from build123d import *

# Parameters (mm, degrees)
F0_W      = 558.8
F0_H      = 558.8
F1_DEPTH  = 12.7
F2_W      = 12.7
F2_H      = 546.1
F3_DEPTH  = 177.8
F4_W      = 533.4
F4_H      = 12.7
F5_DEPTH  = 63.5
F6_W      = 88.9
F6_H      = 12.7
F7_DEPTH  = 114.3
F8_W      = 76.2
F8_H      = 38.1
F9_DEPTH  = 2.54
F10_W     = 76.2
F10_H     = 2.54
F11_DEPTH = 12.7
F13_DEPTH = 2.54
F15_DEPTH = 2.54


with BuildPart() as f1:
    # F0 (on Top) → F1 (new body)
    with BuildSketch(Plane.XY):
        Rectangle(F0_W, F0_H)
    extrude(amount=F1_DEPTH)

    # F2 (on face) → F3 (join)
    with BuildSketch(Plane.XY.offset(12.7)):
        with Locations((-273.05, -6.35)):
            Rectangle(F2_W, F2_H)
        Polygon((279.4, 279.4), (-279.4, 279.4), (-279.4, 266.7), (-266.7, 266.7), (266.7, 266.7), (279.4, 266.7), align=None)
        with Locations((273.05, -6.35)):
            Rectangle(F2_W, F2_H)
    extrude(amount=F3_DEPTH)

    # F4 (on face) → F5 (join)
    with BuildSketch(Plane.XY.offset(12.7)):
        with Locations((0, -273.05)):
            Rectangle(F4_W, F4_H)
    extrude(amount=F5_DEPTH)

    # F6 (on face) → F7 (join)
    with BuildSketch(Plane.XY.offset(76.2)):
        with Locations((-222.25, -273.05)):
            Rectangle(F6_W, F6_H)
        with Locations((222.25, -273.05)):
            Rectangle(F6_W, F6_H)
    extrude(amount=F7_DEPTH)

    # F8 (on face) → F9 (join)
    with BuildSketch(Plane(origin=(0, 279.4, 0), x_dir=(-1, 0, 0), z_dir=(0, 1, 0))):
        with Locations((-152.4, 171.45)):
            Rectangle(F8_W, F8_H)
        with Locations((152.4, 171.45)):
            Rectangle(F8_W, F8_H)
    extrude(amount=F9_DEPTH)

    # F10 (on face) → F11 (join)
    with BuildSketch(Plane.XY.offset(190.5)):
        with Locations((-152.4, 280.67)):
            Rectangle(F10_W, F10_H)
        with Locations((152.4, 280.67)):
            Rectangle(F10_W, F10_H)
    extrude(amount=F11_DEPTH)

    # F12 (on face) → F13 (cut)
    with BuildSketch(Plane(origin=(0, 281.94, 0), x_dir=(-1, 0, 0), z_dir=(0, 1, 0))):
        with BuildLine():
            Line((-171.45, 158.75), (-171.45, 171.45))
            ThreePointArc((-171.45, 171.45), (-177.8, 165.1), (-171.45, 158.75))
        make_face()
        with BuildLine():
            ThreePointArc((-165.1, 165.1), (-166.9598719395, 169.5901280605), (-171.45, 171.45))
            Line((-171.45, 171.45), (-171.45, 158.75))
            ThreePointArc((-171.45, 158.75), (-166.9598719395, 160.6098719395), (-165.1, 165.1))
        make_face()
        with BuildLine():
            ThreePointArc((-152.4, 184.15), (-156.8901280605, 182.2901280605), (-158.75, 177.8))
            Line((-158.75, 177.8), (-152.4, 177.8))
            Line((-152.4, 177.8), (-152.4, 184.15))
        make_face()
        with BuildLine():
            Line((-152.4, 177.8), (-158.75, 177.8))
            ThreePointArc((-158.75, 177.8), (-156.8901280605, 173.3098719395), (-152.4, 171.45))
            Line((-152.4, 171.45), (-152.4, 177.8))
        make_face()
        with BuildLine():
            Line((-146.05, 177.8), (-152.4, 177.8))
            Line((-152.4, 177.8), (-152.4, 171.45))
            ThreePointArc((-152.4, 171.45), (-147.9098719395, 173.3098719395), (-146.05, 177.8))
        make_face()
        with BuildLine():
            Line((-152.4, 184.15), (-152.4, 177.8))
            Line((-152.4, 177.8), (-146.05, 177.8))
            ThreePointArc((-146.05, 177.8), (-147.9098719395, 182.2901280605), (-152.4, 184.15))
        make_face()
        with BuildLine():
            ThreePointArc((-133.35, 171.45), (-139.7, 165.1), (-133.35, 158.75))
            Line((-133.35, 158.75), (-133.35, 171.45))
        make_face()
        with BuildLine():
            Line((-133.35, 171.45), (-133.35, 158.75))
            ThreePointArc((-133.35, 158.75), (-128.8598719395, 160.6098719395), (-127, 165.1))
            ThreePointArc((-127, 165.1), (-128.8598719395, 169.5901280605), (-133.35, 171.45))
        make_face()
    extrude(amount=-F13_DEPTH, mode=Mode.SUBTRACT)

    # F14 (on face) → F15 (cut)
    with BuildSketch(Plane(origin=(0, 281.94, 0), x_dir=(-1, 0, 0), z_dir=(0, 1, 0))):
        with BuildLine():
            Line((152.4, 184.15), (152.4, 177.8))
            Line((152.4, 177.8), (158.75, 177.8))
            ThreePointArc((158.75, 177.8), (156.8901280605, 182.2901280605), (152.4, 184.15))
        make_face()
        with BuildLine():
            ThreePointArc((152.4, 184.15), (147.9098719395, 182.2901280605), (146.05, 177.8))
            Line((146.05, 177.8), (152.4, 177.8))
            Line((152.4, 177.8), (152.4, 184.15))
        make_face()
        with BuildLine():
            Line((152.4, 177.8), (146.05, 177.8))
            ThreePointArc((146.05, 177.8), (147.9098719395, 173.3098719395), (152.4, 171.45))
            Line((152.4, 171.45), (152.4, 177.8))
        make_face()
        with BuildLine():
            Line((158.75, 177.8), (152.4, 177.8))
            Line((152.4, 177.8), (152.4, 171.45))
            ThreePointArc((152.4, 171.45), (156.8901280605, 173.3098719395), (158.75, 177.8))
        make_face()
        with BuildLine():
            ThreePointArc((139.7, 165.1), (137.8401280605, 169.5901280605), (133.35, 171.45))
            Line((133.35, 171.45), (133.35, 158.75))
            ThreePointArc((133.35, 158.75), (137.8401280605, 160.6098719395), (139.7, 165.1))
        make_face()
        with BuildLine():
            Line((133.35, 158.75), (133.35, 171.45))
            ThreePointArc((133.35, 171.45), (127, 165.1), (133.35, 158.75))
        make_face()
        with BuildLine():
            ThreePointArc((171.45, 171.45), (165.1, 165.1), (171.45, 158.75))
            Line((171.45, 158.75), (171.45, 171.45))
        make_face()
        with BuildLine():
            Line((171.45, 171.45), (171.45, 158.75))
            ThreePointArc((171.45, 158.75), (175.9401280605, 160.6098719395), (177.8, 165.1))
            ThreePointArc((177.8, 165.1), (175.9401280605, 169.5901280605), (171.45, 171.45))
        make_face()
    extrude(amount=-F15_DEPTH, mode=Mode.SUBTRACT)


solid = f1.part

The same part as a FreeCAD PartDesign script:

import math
import FreeCAD as App
import Part
import Sketcher
Q = App.Units.Quantity

doc = App.newDocument("Part")
body = doc.addObject("PartDesign::Body", "Body")

# Sketch on XY plane
sketch1 = doc.addObject("Sketcher::SketchObject", "Sketch")
body.addObject(sketch1)
sketch1.AttachmentSupport = (doc.XY_Plane, [""])
sketch1.MapMode = "FlatFace"
sketch1.addGeometry([
    Part.LineSegment(App.Vector(-279, 279, 0), App.Vector(-279, -279, 0)),
    Part.LineSegment(App.Vector(-279, -279, 0), App.Vector(279, -279, 0)),
    Part.LineSegment(App.Vector(279, -279, 0), App.Vector(279, 279, 0)),
    Part.LineSegment(App.Vector(279, 279, 0), App.Vector(-279, 279, 0)),
], False)
sketch1.addConstraint([
    Sketcher.Constraint("Coincident", 0, 2, 1, 1),
    Sketcher.Constraint("Coincident", 1, 2, 2, 1),
    Sketcher.Constraint("Coincident", 2, 2, 3, 1),
    Sketcher.Constraint("Coincident", 3, 2, 0, 1),
    Sketcher.Constraint("Vertical", 0),
    Sketcher.Constraint("Horizontal", 1),
    Sketcher.Constraint("Vertical", 2),
    Sketcher.Constraint("Horizontal", 3),
    Sketcher.Constraint("Symmetric", 0, 2, 2, 2, -1, 1),
    Sketcher.Constraint("Equal", 3, 0),
    Sketcher.Constraint("DistanceX", 1, 1, 1, 2, Q("22 in")),
])
pad1 = doc.addObject("PartDesign::Pad", "Pad")
body.addObject(pad1)
pad1.Profile = sketch1
pad1.Length = Q("0.5 in")

# Sketch on XY plane
sketch2 = doc.addObject("Sketcher::SketchObject", "Sketch001")
body.addObject(sketch2)
sketch2.AttachmentSupport = (doc.XY_Plane, [""])
sketch2.MapMode = "FlatFace"
sketch2.AttachmentOffset = App.Placement(App.Vector(0, 0, 0.5 * 25.4), App.Rotation())
sketch2.addGeometry([
    Part.LineSegment(App.Vector(-279, -279, 0), App.Vector(-267, -279, 0)),  # 0
    Part.LineSegment(App.Vector(-267, -279, 0), App.Vector(-267, 267, 0)),  # 1
    Part.LineSegment(App.Vector(-267, 267, 0), App.Vector(267, 267, 0)),  # 2
    Part.LineSegment(App.Vector(267, 267, 0), App.Vector(267, -279, 0)),  # 3
    Part.LineSegment(App.Vector(267, -279, 0), App.Vector(279, -279, 0)),  # 4
    Part.LineSegment(App.Vector(279, -279, 0), App.Vector(279, 279, 0)),  # 5
    Part.LineSegment(App.Vector(279, 279, 0), App.Vector(-279, 279, 0)),  # 6
    Part.LineSegment(App.Vector(-279, 279, 0), App.Vector(-279, -279, 0)),  # 7
], False)
sketch2.addConstraint([
    Sketcher.Constraint("Coincident", 0, 2, 1, 1),
    Sketcher.Constraint("Coincident", 1, 2, 2, 1),
    Sketcher.Constraint("Coincident", 2, 2, 3, 1),
    Sketcher.Constraint("Coincident", 3, 2, 4, 1),
    Sketcher.Constraint("Coincident", 4, 2, 5, 1),
    Sketcher.Constraint("Coincident", 5, 2, 6, 1),
    Sketcher.Constraint("Coincident", 6, 2, 7, 1),
    Sketcher.Constraint("Coincident", 7, 2, 0, 1),
    Sketcher.Constraint("Horizontal", 0),
    Sketcher.Constraint("Vertical", 1),
    Sketcher.Constraint("Horizontal", 2),
    Sketcher.Constraint("Vertical", 3),
    Sketcher.Constraint("Horizontal", 4),
    Sketcher.Constraint("Vertical", 5),
    Sketcher.Constraint("Horizontal", 6),
    Sketcher.Constraint("Vertical", 7),
    Sketcher.Constraint("Symmetric", 4, 2, 6, 2, -1, 1),
    Sketcher.Constraint("Symmetric", 0, 2, 3, 2, -2),
    Sketcher.Constraint("Equal", 6, 5),
    Sketcher.Constraint("DistanceX", 2, 1, 2, 2, Q("21 in")),
    Sketcher.Constraint("DistanceX", 6, 2, 6, 1, Q("22 in")),
    Sketcher.Constraint("DistanceY", 1, 1, 1, 2, Q("21.5 in")),
])
pad2 = doc.addObject("PartDesign::Pad", "Pad001")
body.addObject(pad2)
pad2.Profile = sketch2
pad2.Length = Q("7 in")

# Sketch on XY plane
sketch3 = doc.addObject("Sketcher::SketchObject", "Sketch002")
body.addObject(sketch3)
sketch3.AttachmentSupport = (doc.XY_Plane, [""])
sketch3.MapMode = "FlatFace"
sketch3.AttachmentOffset = App.Placement(App.Vector(0, 0, 0.5 * 25.4), App.Rotation())
sketch3.addGeometry([
    Part.LineSegment(App.Vector(-267, -267, 0), App.Vector(-267, -279, 0)),
    Part.LineSegment(App.Vector(-267, -279, 0), App.Vector(267, -279, 0)),
    Part.LineSegment(App.Vector(267, -279, 0), App.Vector(267, -267, 0)),
    Part.LineSegment(App.Vector(267, -267, 0), App.Vector(-267, -267, 0)),
], False)
sketch3.addConstraint([
    Sketcher.Constraint("Coincident", 0, 2, 1, 1),
    Sketcher.Constraint("Coincident", 1, 2, 2, 1),
    Sketcher.Constraint("Coincident", 2, 2, 3, 1),
    Sketcher.Constraint("Coincident", 3, 2, 0, 1),
    Sketcher.Constraint("Vertical", 0),
    Sketcher.Constraint("Horizontal", 1),
    Sketcher.Constraint("Vertical", 2),
    Sketcher.Constraint("Horizontal", 3),
    Sketcher.Constraint("DistanceX", 1, 1, 1, 2, Q("21 in")),
    Sketcher.Constraint("DistanceY", 0, 2, 0, 1, Q("0.5 in")),
    Sketcher.Constraint("DistanceY", 0, 2, -1, 1, Q("11 in")),
    Sketcher.Constraint("DistanceX", 0, 2, -1, 1, Q("10.5 in")),
])
pad3 = doc.addObject("PartDesign::Pad", "Pad002")
body.addObject(pad3)
pad3.Profile = sketch3
pad3.Length = Q("2.5 in")

# Sketch on XY plane
sketch4 = doc.addObject("Sketcher::SketchObject", "Sketch003")
body.addObject(sketch4)
sketch4.AttachmentSupport = (doc.XY_Plane, [""])
sketch4.MapMode = "FlatFace"
sketch4.AttachmentOffset = App.Placement(App.Vector(0, 0, 3 * 25.4), App.Rotation())
sketch4.addGeometry([
    Part.LineSegment(App.Vector(-267, -267, 0), App.Vector(-267, -279, 0)),  # 0
    Part.LineSegment(App.Vector(-267, -279, 0), App.Vector(-178, -279, 0)),  # 1
    Part.LineSegment(App.Vector(-178, -279, 0), App.Vector(-178, -267, 0)),  # 2
    Part.LineSegment(App.Vector(-178, -267, 0), App.Vector(-267, -267, 0)),  # 3
    Part.LineSegment(App.Vector(178, -267, 0), App.Vector(178, -279, 0)),  # 4
    Part.LineSegment(App.Vector(178, -279, 0), App.Vector(267, -279, 0)),  # 5
    Part.LineSegment(App.Vector(267, -279, 0), App.Vector(267, -267, 0)),  # 6
    Part.LineSegment(App.Vector(267, -267, 0), App.Vector(178, -267, 0)),  # 7
], False)
sketch4.addConstraint([
    Sketcher.Constraint("Coincident", 0, 2, 1, 1),
    Sketcher.Constraint("Coincident", 1, 2, 2, 1),
    Sketcher.Constraint("Coincident", 2, 2, 3, 1),
    Sketcher.Constraint("Coincident", 3, 2, 0, 1),
    Sketcher.Constraint("Coincident", 4, 2, 5, 1),
    Sketcher.Constraint("Coincident", 5, 2, 6, 1),
    Sketcher.Constraint("Coincident", 6, 2, 7, 1),
    Sketcher.Constraint("Coincident", 7, 2, 4, 1),
    Sketcher.Constraint("Vertical", 0),
    Sketcher.Constraint("Horizontal", 1),
    Sketcher.Constraint("Vertical", 2),
    Sketcher.Constraint("Horizontal", 3),
    Sketcher.Constraint("Vertical", 4),
    Sketcher.Constraint("Horizontal", 5),
    Sketcher.Constraint("Vertical", 6),
    Sketcher.Constraint("Horizontal", 7),
    Sketcher.Constraint("Symmetric", 1, 2, 4, 2, -2),
    Sketcher.Constraint("Symmetric", 3, 2, 6, 2, -2),
    Sketcher.Constraint("DistanceX", 1, 1, 1, 2, Q("3.5 in")),
    Sketcher.Constraint("DistanceY", 0, 2, 0, 1, Q("0.5 in")),
    Sketcher.Constraint("DistanceY", 0, 2, -1, 1, Q("11 in")),
    Sketcher.Constraint("DistanceX", 1, 2, -1, 1, Q("7 in")),
])
pad4 = doc.addObject("PartDesign::Pad", "Pad003")
body.addObject(pad4)
pad4.Profile = sketch4
pad4.Length = Q("4.5 in")

# Sketch on XZ plane
sketch5 = doc.addObject("Sketcher::SketchObject", "Sketch004")
body.addObject(sketch5)
sketch5.AttachmentSupport = (doc.XZ_Plane, [""])
sketch5.MapMode = "FlatFace"
sketch5.AttachmentOffset = App.Placement(App.Vector(0, 0, -11 * 25.4), App.Rotation())
sketch5.addGeometry([
    Part.LineSegment(App.Vector(190, 190, 0), App.Vector(190, 152, 0)),  # 0
    Part.LineSegment(App.Vector(190, 152, 0), App.Vector(114, 152, 0)),  # 1
    Part.LineSegment(App.Vector(114, 152, 0), App.Vector(114, 190, 0)),  # 2
    Part.LineSegment(App.Vector(114, 190, 0), App.Vector(190, 190, 0)),  # 3
    Part.LineSegment(App.Vector(-114, 190, 0), App.Vector(-114, 152, 0)),  # 4
    Part.LineSegment(App.Vector(-114, 152, 0), App.Vector(-190, 152, 0)),  # 5
    Part.LineSegment(App.Vector(-190, 152, 0), App.Vector(-190, 190, 0)),  # 6
    Part.LineSegment(App.Vector(-190, 190, 0), App.Vector(-114, 190, 0)),  # 7
], False)
sketch5.addConstraint([
    Sketcher.Constraint("Coincident", 0, 2, 1, 1),
    Sketcher.Constraint("Coincident", 1, 2, 2, 1),
    Sketcher.Constraint("Coincident", 2, 2, 3, 1),
    Sketcher.Constraint("Coincident", 3, 2, 0, 1),
    Sketcher.Constraint("Coincident", 4, 2, 5, 1),
    Sketcher.Constraint("Coincident", 5, 2, 6, 1),
    Sketcher.Constraint("Coincident", 6, 2, 7, 1),
    Sketcher.Constraint("Coincident", 7, 2, 4, 1),
    Sketcher.Constraint("Vertical", 0),
    Sketcher.Constraint("Horizontal", 1),
    Sketcher.Constraint("Vertical", 2),
    Sketcher.Constraint("Horizontal", 3),
    Sketcher.Constraint("Vertical", 4),
    Sketcher.Constraint("Horizontal", 5),
    Sketcher.Constraint("Vertical", 6),
    Sketcher.Constraint("Horizontal", 7),
    Sketcher.Constraint("Symmetric", 1, 2, 4, 2, -2),
    Sketcher.Constraint("Symmetric", 3, 2, 6, 2, -2),
    Sketcher.Constraint("DistanceX", 1, 2, 1, 1, Q("3 in")),
    Sketcher.Constraint("DistanceY", 0, 2, 0, 1, Q("1.5 in")),
    Sketcher.Constraint("DistanceY", -1, 1, 0, 2, Q("6 in")),
    Sketcher.Constraint("DistanceX", 4, 2, 1, 2, Q("9 in")),
])
pad5 = doc.addObject("PartDesign::Pad", "Pad004")
body.addObject(pad5)
pad5.Profile = sketch5
pad5.Length = Q("0.1 in")
pad5.Reversed = True

# Sketch on XY plane
sketch6 = doc.addObject("Sketcher::SketchObject", "Sketch005")
body.addObject(sketch6)
sketch6.AttachmentSupport = (doc.XY_Plane, [""])
sketch6.MapMode = "FlatFace"
sketch6.AttachmentOffset = App.Placement(App.Vector(0, 0, 7.5 * 25.4), App.Rotation())
sketch6.addGeometry([
    Part.LineSegment(App.Vector(-190.5, 281.9, 0), App.Vector(-190.5, 279.4, 0)),  # 0
    Part.LineSegment(App.Vector(-190.5, 279.4, 0), App.Vector(-114.3, 279.4, 0)),  # 1
    Part.LineSegment(App.Vector(-114.3, 279.4, 0), App.Vector(-114.3, 281.9, 0)),  # 2
    Part.LineSegment(App.Vector(-114.3, 281.9, 0), App.Vector(-190.5, 281.9, 0)),  # 3
    Part.LineSegment(App.Vector(114.3, 281.9, 0), App.Vector(114.3, 279.4, 0)),  # 4
    Part.LineSegment(App.Vector(114.3, 279.4, 0), App.Vector(190.5, 279.4, 0)),  # 5
    Part.LineSegment(App.Vector(190.5, 279.4, 0), App.Vector(190.5, 281.9, 0)),  # 6
    Part.LineSegment(App.Vector(190.5, 281.9, 0), App.Vector(114.3, 281.9, 0)),  # 7
], False)
sketch6.addConstraint([
    Sketcher.Constraint("Coincident", 0, 2, 1, 1),
    Sketcher.Constraint("Coincident", 1, 2, 2, 1),
    Sketcher.Constraint("Coincident", 2, 2, 3, 1),
    Sketcher.Constraint("Coincident", 3, 2, 0, 1),
    Sketcher.Constraint("Coincident", 4, 2, 5, 1),
    Sketcher.Constraint("Coincident", 5, 2, 6, 1),
    Sketcher.Constraint("Coincident", 6, 2, 7, 1),
    Sketcher.Constraint("Coincident", 7, 2, 4, 1),
    Sketcher.Constraint("Vertical", 0),
    Sketcher.Constraint("Horizontal", 1),
    Sketcher.Constraint("Vertical", 2),
    Sketcher.Constraint("Horizontal", 3),
    Sketcher.Constraint("Vertical", 4),
    Sketcher.Constraint("Horizontal", 5),
    Sketcher.Constraint("Vertical", 6),
    Sketcher.Constraint("Horizontal", 7),
    Sketcher.Constraint("Symmetric", 1, 2, 4, 2, -2),
    Sketcher.Constraint("Symmetric", 3, 2, 6, 2, -2),
    Sketcher.Constraint("DistanceX", 1, 1, 1, 2, Q("3 in")),
    Sketcher.Constraint("DistanceY", 0, 2, 0, 1, Q("0.1 in")),
    Sketcher.Constraint("DistanceY", -1, 1, 0, 2, Q("11 in")),
    Sketcher.Constraint("DistanceX", 1, 2, 4, 2, Q("9 in")),
])
pad6 = doc.addObject("PartDesign::Pad", "Pad005")
body.addObject(pad6)
pad6.Profile = sketch6
pad6.Length = Q("0.5 in")

# Sketch on XZ plane
sketch7 = doc.addObject("Sketcher::SketchObject", "Sketch006")
body.addObject(sketch7)
sketch7.AttachmentSupport = (doc.XZ_Plane, [""])
sketch7.MapMode = "FlatFace"
sketch7.AttachmentOffset = App.Placement(App.Vector(0, 0, -11.1 * 25.4), App.Rotation())
sketch7.addGeometry([
    Part.ArcOfCircle(Part.Circle(App.Vector(171, 165, 0), App.Vector(0, 0, 1), 6), math.radians(-90), math.radians(90)),  # 0
    Part.ArcOfCircle(Part.Circle(App.Vector(171, 165, 0), App.Vector(0, 0, 1), 6), math.radians(180), math.radians(270)),  # 1
    Part.ArcOfCircle(Part.Circle(App.Vector(171, 165, 0), App.Vector(0, 0, 1), 6), math.radians(90), math.radians(180)),  # 2
    Part.ArcOfCircle(Part.Circle(App.Vector(152, 178, 0), App.Vector(0, 0, 1), 6), math.radians(0), math.radians(90)),  # 3
    Part.ArcOfCircle(Part.Circle(App.Vector(152, 178, 0), App.Vector(0, 0, 1), 6), math.radians(-90), math.radians(0)),  # 4
    Part.ArcOfCircle(Part.Circle(App.Vector(152, 178, 0), App.Vector(0, 0, 1), 6), math.radians(180), math.radians(270)),  # 5
    Part.ArcOfCircle(Part.Circle(App.Vector(152, 178, 0), App.Vector(0, 0, 1), 6), math.radians(90), math.radians(180)),  # 6
    Part.ArcOfCircle(Part.Circle(App.Vector(133, 165, 0), App.Vector(0, 0, 1), 6), math.radians(-90), math.radians(90)),  # 7
    Part.ArcOfCircle(Part.Circle(App.Vector(133, 165, 0), App.Vector(0, 0, 1), 6), math.radians(180), math.radians(270)),  # 8
    Part.ArcOfCircle(Part.Circle(App.Vector(133, 165, 0), App.Vector(0, 0, 1), 6), math.radians(90), math.radians(180)),  # 9
], False)
sketch7.addConstraint([
    Sketcher.Constraint("Tangent", 0, 1, 1, 2),
    Sketcher.Constraint("Tangent", 1, 1, 2, 2),
    Sketcher.Constraint("Tangent", 2, 1, 0, 2),
    Sketcher.Constraint("Tangent", 3, 1, 4, 2),
    Sketcher.Constraint("Tangent", 4, 1, 5, 2),
    Sketcher.Constraint("Tangent", 5, 1, 6, 2),
    Sketcher.Constraint("Tangent", 6, 1, 3, 2),
    Sketcher.Constraint("Tangent", 7, 1, 8, 2),
    Sketcher.Constraint("Tangent", 8, 1, 9, 2),
    Sketcher.Constraint("Tangent", 9, 1, 7, 2),
    Sketcher.Constraint("Equal", 2, 3),
    Sketcher.Constraint("Equal", 3, 4),
    Sketcher.Constraint("Equal", 6, 7),
    Sketcher.Constraint("Horizontal", 2, 3, 7, 3),
    Sketcher.Constraint("Horizontal", 9, 3, 1, 1),
    Sketcher.Constraint("Horizontal", 6, 3, 3, 1),
    Sketcher.Constraint("Horizontal", 2, 1, 4, 1),
    Sketcher.Constraint("Horizontal", 3, 1, 5, 1),
    Sketcher.Constraint("Horizontal", 1, 1, 8, 1),
    Sketcher.Constraint("Vertical", 2, 3, 0, 1),
    Sketcher.Constraint("Vertical", 0, 1, 2, 1),
    Sketcher.Constraint("Vertical", 6, 3, 4, 1),
    Sketcher.Constraint("Vertical", 4, 1, 6, 1),
    Sketcher.Constraint("Vertical", 9, 3, 7, 1),
    Sketcher.Constraint("Vertical", 7, 1, 9, 1),
    Sketcher.Constraint("Radius", 0, Q("0.25 in")),
    Sketcher.Constraint("DistanceX", -1, 1, 3, 3, Q("6 in")),
    Sketcher.Constraint("DistanceY", -1, 1, 3, 3, Q("7 in")),
    Sketcher.Constraint("DistanceX", -1, 1, 8, 1, Q("5 in")),
    Sketcher.Constraint("DistanceX", -1, 1, 1, 1, Q("6.5 in")),
])
pocket1 = doc.addObject("PartDesign::Pocket", "Pocket")
body.addObject(pocket1)
pocket1.Profile = sketch7
pocket1.Length = Q("0.1 in")
pocket1.Reversed = True

# Sketch on XZ plane
sketch8 = doc.addObject("Sketcher::SketchObject", "Sketch007")
body.addObject(sketch8)
sketch8.AttachmentSupport = (doc.XZ_Plane, [""])
sketch8.MapMode = "FlatFace"
sketch8.AttachmentOffset = App.Placement(App.Vector(0, 0, -11.1 * 25.4), App.Rotation())
sketch8.addGeometry([
    Part.ArcOfCircle(Part.Circle(App.Vector(-152, 178, 0), App.Vector(0, 0, 1), 6), math.radians(90), math.radians(180)),  # 0
    Part.ArcOfCircle(Part.Circle(App.Vector(-152, 178, 0), App.Vector(0, 0, 1), 6), math.radians(0), math.radians(90)),  # 1
    Part.ArcOfCircle(Part.Circle(App.Vector(-152, 178, 0), App.Vector(0, 0, 1), 6), math.radians(-90), math.radians(0)),  # 2
    Part.ArcOfCircle(Part.Circle(App.Vector(-152, 178, 0), App.Vector(0, 0, 1), 6), math.radians(180), math.radians(270)),  # 3
    Part.ArcOfCircle(Part.Circle(App.Vector(-133, 165, 0), App.Vector(0, 0, 1), 6), math.radians(90), math.radians(180)),  # 4
    Part.ArcOfCircle(Part.Circle(App.Vector(-133, 165, 0), App.Vector(0, 0, 1), 6), math.radians(-90), math.radians(90)),  # 5
    Part.ArcOfCircle(Part.Circle(App.Vector(-133, 165, 0), App.Vector(0, 0, 1), 6), math.radians(180), math.radians(270)),  # 6
    Part.ArcOfCircle(Part.Circle(App.Vector(-171, 165, 0), App.Vector(0, 0, 1), 6), math.radians(-90), math.radians(90)),  # 7
    Part.ArcOfCircle(Part.Circle(App.Vector(-171, 165, 0), App.Vector(0, 0, 1), 6), math.radians(180), math.radians(270)),  # 8
    Part.ArcOfCircle(Part.Circle(App.Vector(-171, 165, 0), App.Vector(0, 0, 1), 6), math.radians(90), math.radians(180)),  # 9
], False)
sketch8.addConstraint([
    Sketcher.Constraint("Tangent", 0, 1, 1, 2),
    Sketcher.Constraint("Tangent", 1, 1, 2, 2),
    Sketcher.Constraint("Tangent", 2, 1, 3, 2),
    Sketcher.Constraint("Tangent", 3, 1, 0, 2),
    Sketcher.Constraint("Tangent", 4, 1, 5, 2),
    Sketcher.Constraint("Tangent", 5, 1, 6, 2),
    Sketcher.Constraint("Tangent", 6, 1, 4, 2),
    Sketcher.Constraint("Tangent", 7, 1, 8, 2),
    Sketcher.Constraint("Tangent", 8, 1, 9, 2),
    Sketcher.Constraint("Tangent", 9, 1, 7, 2),
    Sketcher.Constraint("Equal", 0, 1),
    Sketcher.Constraint("Equal", 3, 4),
    Sketcher.Constraint("Equal", 6, 7),
    Sketcher.Constraint("Horizontal", 6, 3, 7, 3),
    Sketcher.Constraint("Horizontal", 3, 3, 1, 1),
    Sketcher.Constraint("Horizontal", 1, 1, 3, 1),
    Sketcher.Constraint("Horizontal", 2, 1, 4, 1),
    Sketcher.Constraint("Horizontal", 9, 3, 6, 1),
    Sketcher.Constraint("Horizontal", 6, 1, 8, 1),
    Sketcher.Constraint("Vertical", 3, 3, 0, 1),
    Sketcher.Constraint("Vertical", 0, 1, 2, 1),
    Sketcher.Constraint("Vertical", 6, 3, 4, 1),
    Sketcher.Constraint("Vertical", 4, 1, 5, 1),
    Sketcher.Constraint("Vertical", 9, 3, 7, 1),
    Sketcher.Constraint("Vertical", 7, 1, 9, 1),
    Sketcher.Constraint("Radius", 0, Q("0.25 in")),
    Sketcher.Constraint("DistanceX", 0, 3, -1, 1, Q("6 in")),
    Sketcher.Constraint("DistanceY", -1, 1, 0, 3, Q("7 in")),
    Sketcher.Constraint("DistanceX", 8, 1, -1, 1, Q("7 in")),
    Sketcher.Constraint("DistanceX", 6, 1, -1, 1, Q("5.5 in")),
])
pocket2 = doc.addObject("PartDesign::Pocket", "Pocket001")
body.addObject(pocket2)
pocket2.Profile = sketch8
pocket2.Length = Q("0.1 in")
pocket2.Reversed = True

doc.recompute()
